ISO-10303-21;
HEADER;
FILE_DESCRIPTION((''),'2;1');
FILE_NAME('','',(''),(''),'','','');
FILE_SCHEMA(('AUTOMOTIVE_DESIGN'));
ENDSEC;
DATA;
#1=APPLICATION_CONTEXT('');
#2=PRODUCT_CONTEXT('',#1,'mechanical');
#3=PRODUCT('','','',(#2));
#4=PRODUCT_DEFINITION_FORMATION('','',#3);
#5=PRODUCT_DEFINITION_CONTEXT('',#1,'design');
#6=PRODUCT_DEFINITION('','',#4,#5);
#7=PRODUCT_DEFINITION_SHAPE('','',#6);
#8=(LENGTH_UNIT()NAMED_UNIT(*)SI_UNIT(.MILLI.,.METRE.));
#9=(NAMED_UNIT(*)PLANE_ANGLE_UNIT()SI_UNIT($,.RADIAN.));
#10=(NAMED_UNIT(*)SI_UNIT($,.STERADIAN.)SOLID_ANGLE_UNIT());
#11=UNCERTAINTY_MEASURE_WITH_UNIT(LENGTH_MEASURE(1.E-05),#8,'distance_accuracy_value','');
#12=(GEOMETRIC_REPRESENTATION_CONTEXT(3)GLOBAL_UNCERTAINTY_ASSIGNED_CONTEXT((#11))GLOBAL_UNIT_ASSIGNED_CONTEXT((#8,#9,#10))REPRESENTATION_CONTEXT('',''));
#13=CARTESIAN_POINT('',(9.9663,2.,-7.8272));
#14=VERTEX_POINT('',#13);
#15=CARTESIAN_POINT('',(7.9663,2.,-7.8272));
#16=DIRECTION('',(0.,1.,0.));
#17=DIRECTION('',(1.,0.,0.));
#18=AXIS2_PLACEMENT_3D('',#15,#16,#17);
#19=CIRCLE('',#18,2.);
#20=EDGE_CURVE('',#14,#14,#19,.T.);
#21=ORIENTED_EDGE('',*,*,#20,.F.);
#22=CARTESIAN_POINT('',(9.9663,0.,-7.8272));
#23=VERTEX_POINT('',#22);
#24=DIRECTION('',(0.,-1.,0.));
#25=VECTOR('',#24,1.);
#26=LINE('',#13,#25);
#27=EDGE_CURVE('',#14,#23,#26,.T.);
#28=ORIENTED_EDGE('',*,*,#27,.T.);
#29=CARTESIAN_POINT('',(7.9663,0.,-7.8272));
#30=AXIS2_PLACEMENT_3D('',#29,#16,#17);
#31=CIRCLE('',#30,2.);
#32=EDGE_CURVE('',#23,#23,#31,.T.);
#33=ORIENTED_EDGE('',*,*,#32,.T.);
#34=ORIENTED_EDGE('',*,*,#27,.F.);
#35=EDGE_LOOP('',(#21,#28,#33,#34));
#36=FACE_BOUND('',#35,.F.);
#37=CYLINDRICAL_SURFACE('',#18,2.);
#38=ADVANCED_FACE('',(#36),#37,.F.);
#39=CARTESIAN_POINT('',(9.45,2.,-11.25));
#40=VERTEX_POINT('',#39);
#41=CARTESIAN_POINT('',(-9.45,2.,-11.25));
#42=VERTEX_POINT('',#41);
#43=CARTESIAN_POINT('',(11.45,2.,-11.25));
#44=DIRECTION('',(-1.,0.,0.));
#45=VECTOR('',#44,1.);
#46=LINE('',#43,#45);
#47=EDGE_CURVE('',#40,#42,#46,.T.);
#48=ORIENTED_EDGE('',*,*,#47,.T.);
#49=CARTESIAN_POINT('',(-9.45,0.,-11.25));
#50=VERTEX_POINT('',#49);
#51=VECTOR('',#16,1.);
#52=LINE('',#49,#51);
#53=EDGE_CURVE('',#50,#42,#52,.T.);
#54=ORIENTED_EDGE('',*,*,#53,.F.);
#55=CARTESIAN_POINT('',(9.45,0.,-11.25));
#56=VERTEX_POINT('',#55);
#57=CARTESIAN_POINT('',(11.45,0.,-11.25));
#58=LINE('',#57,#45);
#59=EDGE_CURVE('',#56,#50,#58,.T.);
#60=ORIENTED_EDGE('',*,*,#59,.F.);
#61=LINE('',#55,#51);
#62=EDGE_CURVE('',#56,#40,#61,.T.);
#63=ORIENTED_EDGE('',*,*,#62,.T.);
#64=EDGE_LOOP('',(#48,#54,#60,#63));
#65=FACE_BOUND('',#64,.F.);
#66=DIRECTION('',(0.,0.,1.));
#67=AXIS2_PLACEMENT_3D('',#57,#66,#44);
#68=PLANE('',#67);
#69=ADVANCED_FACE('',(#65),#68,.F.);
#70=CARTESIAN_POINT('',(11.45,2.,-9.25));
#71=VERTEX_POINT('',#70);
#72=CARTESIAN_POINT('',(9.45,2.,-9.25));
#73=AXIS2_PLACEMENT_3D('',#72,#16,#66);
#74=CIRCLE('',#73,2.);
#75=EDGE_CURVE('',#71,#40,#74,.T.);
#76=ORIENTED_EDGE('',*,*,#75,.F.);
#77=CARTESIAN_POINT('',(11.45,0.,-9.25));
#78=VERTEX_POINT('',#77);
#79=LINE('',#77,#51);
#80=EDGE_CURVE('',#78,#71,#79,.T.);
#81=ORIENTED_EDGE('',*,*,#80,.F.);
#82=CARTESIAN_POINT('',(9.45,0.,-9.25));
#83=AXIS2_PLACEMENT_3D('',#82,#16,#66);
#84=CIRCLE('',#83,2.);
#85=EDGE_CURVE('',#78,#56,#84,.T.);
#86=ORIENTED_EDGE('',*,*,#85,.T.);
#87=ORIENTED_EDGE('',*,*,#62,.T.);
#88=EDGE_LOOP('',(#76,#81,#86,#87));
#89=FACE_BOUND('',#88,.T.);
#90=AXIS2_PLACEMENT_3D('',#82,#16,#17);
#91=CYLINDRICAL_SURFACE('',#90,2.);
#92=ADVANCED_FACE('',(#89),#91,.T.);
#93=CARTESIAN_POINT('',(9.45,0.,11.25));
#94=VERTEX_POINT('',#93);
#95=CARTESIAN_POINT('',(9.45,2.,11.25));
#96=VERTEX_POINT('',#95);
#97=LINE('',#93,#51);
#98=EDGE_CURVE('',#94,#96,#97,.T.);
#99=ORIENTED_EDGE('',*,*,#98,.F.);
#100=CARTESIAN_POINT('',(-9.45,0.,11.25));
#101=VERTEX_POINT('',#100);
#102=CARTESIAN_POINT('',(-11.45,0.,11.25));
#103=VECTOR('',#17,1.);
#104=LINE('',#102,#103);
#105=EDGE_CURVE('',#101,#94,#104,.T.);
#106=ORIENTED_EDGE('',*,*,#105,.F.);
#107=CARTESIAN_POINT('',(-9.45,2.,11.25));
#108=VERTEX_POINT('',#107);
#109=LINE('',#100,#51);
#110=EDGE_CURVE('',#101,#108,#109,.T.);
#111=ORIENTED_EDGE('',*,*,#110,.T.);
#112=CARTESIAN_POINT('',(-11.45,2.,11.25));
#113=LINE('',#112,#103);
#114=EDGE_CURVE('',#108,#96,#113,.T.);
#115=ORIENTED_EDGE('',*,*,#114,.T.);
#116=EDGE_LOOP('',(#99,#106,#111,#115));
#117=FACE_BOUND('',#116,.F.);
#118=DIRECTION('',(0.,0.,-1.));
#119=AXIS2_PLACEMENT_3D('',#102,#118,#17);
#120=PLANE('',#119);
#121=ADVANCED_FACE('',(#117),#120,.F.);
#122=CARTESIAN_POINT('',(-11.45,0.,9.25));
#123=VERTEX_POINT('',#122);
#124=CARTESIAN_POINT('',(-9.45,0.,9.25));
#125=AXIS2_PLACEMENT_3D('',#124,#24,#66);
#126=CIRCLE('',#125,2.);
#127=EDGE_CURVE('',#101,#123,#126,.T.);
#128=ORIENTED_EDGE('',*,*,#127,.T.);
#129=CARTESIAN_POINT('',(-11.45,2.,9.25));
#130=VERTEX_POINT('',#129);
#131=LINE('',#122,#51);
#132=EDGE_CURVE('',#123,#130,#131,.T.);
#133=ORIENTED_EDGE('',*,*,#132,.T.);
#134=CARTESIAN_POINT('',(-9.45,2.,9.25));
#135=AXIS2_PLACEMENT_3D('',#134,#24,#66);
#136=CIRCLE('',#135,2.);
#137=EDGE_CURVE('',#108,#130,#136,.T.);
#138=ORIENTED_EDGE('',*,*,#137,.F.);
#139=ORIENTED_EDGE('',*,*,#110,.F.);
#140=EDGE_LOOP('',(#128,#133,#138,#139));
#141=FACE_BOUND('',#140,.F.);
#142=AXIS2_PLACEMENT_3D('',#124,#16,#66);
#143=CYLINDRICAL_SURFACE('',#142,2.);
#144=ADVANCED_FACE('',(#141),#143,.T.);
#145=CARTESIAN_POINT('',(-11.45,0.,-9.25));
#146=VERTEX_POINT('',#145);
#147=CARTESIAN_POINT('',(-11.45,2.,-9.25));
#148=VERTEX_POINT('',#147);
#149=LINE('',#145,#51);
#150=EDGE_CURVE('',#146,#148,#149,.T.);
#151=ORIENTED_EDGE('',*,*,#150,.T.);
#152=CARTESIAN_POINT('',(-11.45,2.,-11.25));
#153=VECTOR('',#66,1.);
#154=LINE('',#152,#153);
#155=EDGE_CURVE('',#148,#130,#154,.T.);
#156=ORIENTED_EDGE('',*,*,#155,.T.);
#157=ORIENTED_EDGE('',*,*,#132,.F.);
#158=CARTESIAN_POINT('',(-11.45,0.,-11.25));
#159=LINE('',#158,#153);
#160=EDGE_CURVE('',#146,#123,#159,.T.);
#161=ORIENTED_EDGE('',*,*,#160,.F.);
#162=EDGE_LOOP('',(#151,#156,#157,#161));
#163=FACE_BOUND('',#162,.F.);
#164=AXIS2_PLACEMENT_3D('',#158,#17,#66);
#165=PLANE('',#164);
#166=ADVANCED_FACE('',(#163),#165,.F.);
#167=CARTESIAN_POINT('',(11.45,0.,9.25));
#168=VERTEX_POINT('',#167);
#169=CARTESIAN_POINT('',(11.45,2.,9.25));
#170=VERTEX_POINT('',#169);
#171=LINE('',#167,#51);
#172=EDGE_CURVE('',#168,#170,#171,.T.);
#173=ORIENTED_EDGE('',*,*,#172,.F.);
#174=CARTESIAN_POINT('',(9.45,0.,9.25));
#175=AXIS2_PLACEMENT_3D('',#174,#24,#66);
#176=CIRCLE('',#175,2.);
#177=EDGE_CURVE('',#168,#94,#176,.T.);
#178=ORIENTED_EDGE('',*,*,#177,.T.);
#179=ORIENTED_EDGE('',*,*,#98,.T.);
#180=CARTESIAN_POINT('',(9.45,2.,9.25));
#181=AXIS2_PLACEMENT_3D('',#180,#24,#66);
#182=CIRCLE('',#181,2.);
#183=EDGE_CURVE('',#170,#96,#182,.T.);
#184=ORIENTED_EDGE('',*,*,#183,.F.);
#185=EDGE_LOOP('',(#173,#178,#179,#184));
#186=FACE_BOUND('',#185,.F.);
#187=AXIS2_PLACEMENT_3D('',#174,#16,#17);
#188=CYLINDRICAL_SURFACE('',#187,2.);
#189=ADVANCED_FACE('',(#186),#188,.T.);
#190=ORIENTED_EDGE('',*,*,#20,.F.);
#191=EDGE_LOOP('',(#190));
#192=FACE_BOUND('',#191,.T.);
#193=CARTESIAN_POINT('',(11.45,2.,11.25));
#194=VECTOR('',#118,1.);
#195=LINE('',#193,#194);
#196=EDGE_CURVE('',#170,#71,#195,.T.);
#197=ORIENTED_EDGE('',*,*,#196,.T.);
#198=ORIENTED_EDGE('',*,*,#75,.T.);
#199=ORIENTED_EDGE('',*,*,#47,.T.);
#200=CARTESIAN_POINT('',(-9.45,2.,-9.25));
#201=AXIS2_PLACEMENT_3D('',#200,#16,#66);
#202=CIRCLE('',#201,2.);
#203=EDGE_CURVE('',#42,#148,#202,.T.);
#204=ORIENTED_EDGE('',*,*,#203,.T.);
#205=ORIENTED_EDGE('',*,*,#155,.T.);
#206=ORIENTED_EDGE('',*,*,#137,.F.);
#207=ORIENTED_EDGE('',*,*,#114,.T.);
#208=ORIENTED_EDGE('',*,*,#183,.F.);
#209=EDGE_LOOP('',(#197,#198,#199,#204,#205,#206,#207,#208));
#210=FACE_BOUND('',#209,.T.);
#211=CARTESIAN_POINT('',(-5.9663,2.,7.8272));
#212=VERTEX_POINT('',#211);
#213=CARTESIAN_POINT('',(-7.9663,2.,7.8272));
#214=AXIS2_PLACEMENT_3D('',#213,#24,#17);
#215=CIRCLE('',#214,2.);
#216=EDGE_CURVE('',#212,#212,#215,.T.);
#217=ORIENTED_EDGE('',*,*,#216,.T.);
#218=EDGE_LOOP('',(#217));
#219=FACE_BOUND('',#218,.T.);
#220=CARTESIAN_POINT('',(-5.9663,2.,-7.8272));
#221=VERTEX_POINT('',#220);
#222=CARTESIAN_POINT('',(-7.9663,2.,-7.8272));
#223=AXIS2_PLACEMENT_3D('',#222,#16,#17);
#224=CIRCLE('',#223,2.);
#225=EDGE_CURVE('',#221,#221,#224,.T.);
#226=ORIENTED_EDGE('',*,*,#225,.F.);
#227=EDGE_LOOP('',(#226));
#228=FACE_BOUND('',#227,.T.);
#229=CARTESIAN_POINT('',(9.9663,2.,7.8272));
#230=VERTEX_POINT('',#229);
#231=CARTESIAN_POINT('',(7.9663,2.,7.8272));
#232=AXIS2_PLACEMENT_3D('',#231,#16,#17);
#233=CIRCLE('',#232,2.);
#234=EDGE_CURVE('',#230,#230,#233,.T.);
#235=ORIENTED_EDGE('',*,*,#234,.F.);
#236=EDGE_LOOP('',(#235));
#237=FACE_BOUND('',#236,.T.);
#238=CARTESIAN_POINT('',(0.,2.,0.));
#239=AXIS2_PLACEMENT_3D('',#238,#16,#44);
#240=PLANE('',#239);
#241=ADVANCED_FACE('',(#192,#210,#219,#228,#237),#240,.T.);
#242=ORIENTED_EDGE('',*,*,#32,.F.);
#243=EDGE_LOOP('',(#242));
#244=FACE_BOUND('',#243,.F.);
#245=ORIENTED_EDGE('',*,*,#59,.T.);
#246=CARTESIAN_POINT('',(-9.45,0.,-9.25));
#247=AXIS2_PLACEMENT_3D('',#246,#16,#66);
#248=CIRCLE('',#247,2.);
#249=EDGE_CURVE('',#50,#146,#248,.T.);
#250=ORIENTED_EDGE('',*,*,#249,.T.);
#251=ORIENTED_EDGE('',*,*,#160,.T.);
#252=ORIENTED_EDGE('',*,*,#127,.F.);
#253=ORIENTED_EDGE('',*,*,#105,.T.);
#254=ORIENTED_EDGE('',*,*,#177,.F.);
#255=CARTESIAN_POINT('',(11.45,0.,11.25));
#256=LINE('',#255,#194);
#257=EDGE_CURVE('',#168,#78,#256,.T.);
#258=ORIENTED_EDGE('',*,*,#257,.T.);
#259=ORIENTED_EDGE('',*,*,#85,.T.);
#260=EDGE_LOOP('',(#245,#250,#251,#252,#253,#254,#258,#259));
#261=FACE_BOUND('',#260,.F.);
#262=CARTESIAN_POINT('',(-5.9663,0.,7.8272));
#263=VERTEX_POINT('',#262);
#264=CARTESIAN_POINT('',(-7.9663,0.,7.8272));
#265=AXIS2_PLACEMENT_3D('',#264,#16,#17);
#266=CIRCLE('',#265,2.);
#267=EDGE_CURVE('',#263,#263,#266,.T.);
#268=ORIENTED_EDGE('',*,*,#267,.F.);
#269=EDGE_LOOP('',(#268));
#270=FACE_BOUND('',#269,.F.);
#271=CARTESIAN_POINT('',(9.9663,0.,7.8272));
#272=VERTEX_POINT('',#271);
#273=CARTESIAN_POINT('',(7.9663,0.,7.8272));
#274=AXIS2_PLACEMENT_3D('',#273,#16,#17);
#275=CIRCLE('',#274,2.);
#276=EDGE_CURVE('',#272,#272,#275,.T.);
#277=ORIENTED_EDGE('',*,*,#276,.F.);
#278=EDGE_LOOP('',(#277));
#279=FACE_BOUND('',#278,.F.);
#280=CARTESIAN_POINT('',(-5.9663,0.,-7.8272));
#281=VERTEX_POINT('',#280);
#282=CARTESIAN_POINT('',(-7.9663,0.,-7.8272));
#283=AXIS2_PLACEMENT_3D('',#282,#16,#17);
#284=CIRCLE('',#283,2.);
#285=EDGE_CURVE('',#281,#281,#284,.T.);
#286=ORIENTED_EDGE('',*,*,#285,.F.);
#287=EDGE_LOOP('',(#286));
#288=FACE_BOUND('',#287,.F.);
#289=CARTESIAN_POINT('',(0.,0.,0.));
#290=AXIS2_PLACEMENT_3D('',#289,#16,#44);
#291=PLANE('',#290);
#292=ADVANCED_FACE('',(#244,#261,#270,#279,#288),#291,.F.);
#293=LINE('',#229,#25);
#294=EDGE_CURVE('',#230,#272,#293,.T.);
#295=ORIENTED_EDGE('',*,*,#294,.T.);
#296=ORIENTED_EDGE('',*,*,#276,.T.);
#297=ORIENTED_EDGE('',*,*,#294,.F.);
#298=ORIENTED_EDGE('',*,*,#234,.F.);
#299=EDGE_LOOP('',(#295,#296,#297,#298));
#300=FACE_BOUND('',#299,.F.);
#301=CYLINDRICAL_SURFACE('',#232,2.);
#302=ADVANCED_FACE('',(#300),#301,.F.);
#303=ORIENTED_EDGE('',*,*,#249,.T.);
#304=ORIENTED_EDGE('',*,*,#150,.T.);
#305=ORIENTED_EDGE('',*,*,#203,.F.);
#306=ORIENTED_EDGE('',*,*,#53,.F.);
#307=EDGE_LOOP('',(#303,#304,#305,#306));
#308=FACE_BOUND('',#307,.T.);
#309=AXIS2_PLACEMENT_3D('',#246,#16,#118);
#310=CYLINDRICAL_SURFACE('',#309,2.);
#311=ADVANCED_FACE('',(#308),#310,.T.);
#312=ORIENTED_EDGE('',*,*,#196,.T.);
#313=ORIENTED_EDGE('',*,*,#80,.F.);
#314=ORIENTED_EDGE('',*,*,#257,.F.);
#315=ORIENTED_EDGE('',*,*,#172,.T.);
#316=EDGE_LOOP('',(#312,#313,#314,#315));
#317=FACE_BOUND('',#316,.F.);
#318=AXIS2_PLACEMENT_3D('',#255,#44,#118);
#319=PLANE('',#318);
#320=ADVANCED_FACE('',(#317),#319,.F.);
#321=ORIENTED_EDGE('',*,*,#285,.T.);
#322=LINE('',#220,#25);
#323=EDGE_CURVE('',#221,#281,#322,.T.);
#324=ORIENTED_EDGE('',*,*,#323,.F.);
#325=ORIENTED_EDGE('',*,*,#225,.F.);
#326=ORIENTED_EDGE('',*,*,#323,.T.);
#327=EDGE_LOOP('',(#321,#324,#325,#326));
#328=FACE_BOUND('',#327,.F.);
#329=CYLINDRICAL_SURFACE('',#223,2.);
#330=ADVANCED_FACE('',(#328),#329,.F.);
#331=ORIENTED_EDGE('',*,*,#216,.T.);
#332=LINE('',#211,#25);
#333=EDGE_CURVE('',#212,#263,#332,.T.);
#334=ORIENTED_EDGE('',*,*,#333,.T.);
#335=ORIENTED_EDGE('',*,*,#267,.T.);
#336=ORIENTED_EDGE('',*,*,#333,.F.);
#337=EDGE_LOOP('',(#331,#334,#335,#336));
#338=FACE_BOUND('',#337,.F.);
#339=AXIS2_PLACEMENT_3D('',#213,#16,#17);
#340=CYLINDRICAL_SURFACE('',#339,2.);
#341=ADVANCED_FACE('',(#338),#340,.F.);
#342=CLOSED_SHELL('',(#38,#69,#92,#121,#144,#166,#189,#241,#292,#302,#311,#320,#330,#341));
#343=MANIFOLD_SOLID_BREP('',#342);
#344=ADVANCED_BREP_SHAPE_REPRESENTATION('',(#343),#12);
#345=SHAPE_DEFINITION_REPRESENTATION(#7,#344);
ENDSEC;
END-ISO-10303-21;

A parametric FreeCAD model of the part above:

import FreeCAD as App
import Part
import Sketcher

V = App.Vector
Q = App.Units.Quantity


def edges_at(feature, points):
    """Names of the edges that pass closest to the given points."""
    edges = feature.Shape.Edges
    near = lambda p: min(range(len(edges)), key=lambda i: edges[i].distToShape(Part.Vertex(*p))[0])
    return sorted({f"Edge{near(p) + 1}" for p in points})


def add_polygon(sketch, points):
    """Adds a closed chain of lines whose ends are joined by coincident constraints."""
    first, n = sketch.GeometryCount, len(points)
    for a, b in zip(points, points[1:] + points[:1]):
        sketch.addGeometry(Part.LineSegment(App.Vector(*a, 0), App.Vector(*b, 0)), False)
    for i in range(n):
        sketch.addConstraint(Sketcher.Constraint("Coincident", first + i, 2, first + (i + 1) % n, 1))

doc = App.newDocument("Part")
body = doc.addObject("PartDesign::Body", "Body")

# Sketch on XZ plane
sketch1 = body.newObject("Sketcher::SketchObject", "Sketch")
sketch1.AttachmentSupport = (doc.getObject("XZ_Plane"), [""])
sketch1.MapMode = "FlatFace"
add_polygon(sketch1, [(11, 11), (11, -11), (-11, -11), (-11, 11)])  # lines 0-3
sketch1.addConstraint(Sketcher.Constraint("Vertical", 0))
sketch1.addConstraint(Sketcher.Constraint("Horizontal", 1))
sketch1.addConstraint(Sketcher.Constraint("Vertical", 2))
sketch1.addConstraint(Sketcher.Constraint("Horizontal", 3))
sketch1.addConstraint(Sketcher.Constraint("Symmetric", 0, 2, 2, 2, -1, 1))
sketch1.addConstraint(Sketcher.Constraint("DistanceX", 1, 2, 1, 1, Q("22.9 mm")))
sketch1.addConstraint(Sketcher.Constraint("DistanceY", 0, 2, 0, 1, Q("22.5 mm")))
pad1 = body.newObject("PartDesign::Pad", "Pad")
pad1.Profile = sketch1
pad1.Length = 2
pad1.Reversed = True

# Sketch on XZ plane
sketch2 = body.newObject("Sketcher::SketchObject", "Sketch001")
sketch2.AttachmentSupport = (doc.getObject("XZ_Plane"), [""])
sketch2.MapMode = "FlatFace"
sketch2.AttachmentOffset = App.Placement(V(0, 0, -2), App.Rotation())
sketch2.addGeometry(Part.Circle(V(-8, 7.8, 0), V(0, 0, 1), 2), False)
sketch2.addGeometry(Part.Circle(V(-8, -7.8, 0), V(0, 0, 1), 2), False)
sketch2.addGeometry(Part.Circle(V(8, 7.8, 0), V(0, 0, 1), 2), False)
sketch2.addGeometry(Part.Circle(V(8, -7.8, 0), V(0, 0, 1), 2), False)
sketch2.addConstraint(Sketcher.Constraint("Equal", 0, 1))
sketch2.addConstraint(Sketcher.Constraint("Equal", 1, 2))
sketch2.addConstraint(Sketcher.Constraint("Equal", 2, 3))
sketch2.addConstraint(Sketcher.Constraint("Symmetric", 1, 3, 2, 3, -1, 1))
sketch2.addConstraint(Sketcher.Constraint("Symmetric", 0, 3, 3, 3, -1, 1))
sketch2.addConstraint(Sketcher.Constraint("Symmetric", 0, 3, 2, 3, -2))
sketch2.addConstraint(Sketcher.Constraint("Diameter", 0, Q("4 mm")))
sketch2.addConstraint(Sketcher.Constraint("DistanceX", 0, 3, -1, 1, Q("7.9663 mm")))
sketch2.addConstraint(Sketcher.Constraint("DistanceY", -1, 1, 0, 3, Q("7.8272 mm")))
pocket1 = body.newObject("PartDesign::Pocket", "Pocket")
pocket1.Profile = sketch2
pocket1.Length = 2
pocket1.Reversed = True
doc.recompute()

fillet = body.newObject("PartDesign::Fillet", "Fillet")
fillet.Base = (pocket1, edges_at(pocket1, [
    (-11.45, 1, 11.25),
    (11.45, 1, 11.25),
    (11.45, 1, -11.25),
    (-11.45, 1, -11.25),
]))
fillet.Radius = 2

doc.recompute()
